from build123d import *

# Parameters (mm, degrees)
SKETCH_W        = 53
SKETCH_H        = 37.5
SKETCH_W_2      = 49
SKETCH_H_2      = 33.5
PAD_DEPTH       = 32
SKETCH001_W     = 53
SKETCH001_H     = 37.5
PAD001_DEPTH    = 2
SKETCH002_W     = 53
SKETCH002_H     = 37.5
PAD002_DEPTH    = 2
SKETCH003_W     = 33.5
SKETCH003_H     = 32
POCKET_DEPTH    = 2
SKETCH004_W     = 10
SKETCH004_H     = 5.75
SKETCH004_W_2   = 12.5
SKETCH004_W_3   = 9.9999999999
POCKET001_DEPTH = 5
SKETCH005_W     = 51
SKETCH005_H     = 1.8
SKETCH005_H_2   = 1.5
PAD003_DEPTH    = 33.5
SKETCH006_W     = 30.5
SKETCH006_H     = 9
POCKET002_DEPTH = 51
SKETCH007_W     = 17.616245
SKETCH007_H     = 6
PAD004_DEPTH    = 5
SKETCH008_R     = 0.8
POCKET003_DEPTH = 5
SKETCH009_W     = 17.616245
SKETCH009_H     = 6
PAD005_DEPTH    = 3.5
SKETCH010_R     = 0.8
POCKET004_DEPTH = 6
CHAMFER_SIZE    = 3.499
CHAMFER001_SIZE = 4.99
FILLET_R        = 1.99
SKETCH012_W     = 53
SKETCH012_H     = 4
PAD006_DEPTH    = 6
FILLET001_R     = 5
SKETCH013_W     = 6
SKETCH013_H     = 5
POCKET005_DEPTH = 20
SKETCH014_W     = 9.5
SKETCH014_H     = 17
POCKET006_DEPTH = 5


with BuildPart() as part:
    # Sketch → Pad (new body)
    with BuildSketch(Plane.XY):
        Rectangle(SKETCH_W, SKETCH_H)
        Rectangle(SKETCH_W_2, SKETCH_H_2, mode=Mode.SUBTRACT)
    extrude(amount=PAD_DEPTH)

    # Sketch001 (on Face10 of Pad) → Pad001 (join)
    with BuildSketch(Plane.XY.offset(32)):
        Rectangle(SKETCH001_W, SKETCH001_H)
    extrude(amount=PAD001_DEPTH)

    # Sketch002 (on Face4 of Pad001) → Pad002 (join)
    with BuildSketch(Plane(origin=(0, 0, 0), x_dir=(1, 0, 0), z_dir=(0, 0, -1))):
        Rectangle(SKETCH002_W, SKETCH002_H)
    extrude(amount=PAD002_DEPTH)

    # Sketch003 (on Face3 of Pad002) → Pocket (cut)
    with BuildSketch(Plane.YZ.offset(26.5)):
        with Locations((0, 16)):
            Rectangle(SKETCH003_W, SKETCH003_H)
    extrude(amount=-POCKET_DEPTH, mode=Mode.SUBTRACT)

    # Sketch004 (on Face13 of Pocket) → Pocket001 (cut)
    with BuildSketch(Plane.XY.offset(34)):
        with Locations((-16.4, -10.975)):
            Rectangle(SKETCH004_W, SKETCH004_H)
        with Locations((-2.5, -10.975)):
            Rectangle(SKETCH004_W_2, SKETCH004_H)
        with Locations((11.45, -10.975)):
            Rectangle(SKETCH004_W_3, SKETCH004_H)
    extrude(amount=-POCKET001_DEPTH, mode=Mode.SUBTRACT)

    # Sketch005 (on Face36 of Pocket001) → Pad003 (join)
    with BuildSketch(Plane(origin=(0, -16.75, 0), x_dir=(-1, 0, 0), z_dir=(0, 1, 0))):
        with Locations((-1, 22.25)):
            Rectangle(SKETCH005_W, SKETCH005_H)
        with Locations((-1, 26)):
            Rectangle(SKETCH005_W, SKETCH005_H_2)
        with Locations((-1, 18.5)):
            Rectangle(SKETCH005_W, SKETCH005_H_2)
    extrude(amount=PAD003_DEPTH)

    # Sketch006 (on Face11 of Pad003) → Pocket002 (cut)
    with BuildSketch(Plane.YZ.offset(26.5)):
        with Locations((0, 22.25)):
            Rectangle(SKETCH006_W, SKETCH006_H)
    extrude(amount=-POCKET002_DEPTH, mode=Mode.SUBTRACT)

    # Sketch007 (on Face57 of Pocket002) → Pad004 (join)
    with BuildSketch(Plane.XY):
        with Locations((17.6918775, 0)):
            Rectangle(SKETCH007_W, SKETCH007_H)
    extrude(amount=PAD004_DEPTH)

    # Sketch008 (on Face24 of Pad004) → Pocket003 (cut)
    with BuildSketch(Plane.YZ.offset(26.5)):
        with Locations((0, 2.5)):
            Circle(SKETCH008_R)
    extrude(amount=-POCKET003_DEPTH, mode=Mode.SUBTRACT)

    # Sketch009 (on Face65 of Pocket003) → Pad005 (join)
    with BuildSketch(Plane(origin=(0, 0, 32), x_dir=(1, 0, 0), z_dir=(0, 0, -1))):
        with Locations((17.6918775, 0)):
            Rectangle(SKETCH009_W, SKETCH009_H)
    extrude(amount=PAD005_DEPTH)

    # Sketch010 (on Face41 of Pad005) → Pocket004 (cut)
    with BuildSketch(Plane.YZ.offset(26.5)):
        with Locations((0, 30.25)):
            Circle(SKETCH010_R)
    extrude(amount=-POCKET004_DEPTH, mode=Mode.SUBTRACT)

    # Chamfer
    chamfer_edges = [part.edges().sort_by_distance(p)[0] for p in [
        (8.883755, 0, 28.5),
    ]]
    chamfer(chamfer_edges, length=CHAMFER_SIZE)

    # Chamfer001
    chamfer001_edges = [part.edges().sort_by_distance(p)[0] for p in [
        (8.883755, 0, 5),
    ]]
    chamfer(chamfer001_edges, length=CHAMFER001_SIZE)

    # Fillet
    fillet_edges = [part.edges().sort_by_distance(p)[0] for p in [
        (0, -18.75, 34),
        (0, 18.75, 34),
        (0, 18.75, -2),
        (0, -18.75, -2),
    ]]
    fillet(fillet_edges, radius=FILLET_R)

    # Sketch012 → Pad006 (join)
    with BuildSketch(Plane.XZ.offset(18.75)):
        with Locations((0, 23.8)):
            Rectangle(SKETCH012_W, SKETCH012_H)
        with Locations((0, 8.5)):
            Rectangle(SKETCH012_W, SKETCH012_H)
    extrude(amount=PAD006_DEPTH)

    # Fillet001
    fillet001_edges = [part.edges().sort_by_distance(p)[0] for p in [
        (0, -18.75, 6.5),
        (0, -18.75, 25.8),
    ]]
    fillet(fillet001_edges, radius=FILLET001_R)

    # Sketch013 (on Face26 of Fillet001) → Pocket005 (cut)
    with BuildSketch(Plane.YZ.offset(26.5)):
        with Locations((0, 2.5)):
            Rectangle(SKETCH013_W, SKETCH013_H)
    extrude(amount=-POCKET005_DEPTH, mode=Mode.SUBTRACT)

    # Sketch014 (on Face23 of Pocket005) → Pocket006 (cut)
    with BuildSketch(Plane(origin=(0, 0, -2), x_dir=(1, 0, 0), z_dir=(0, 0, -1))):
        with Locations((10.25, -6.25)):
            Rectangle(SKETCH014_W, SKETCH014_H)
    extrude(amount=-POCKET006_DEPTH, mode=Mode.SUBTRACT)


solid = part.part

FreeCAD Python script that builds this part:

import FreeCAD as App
import Part
import Sketcher

V = App.Vector


def edges_at(feature, points):
    """Names of the edges that pass closest to the given points."""
    edges = feature.Shape.Edges
    near = lambda p: min(range(len(edges)), key=lambda i: edges[i].distToShape(Part.Vertex(*p))[0])
    return sorted({f"Edge{near(p) + 1}" for p in points})

doc = App.newDocument("Part")
body = doc.addObject("PartDesign::Body", "Body")

sketch1 = body.newObject("Sketcher::SketchObject", "Sketch")
sketch1.AttachmentSupport = (doc.getObject("XY_Plane"), [""])
sketch1.MapMode = "FlatFace"
sketch1.addGeometry(Part.LineSegment(V(-26, 19, 0), V(-26, -19, 0)), False)
sketch1.addGeometry(Part.LineSegment(V(-26, -19, 0), V(26, -19, 0)), False)
sketch1.addGeometry(Part.LineSegment(V(26, -19, 0), V(26, 19, 0)), False)
sketch1.addGeometry(Part.LineSegment(V(26, 19, 0), V(-26, 19, 0)), False)
sketch1.addGeometry(Part.LineSegment(V(24, -17, 0), V(-24, -17, 0)), False)
sketch1.addGeometry(Part.LineSegment(V(-24, -17, 0), V(-24, 17, 0)), False)
sketch1.addGeometry(Part.LineSegment(V(-24, 17, 0), V(24, 17, 0)), False)
sketch1.addGeometry(Part.LineSegment(V(24, 17, 0), V(24, -17, 0)), False)
sketch1.addConstraint(Sketcher.Constraint("Coincident", 0, 2, 1, 1))
sketch1.addConstraint(Sketcher.Constraint("Coincident", 1, 2, 2, 1))
sketch1.addConstraint(Sketcher.Constraint("Coincident", 2, 2, 3, 1))
sketch1.addConstraint(Sketcher.Constraint("Coincident", 3, 2, 0, 1))
sketch1.addConstraint(Sketcher.Constraint("Coincident", 4, 2, 5, 1))
sketch1.addConstraint(Sketcher.Constraint("Coincident", 5, 2, 6, 1))
sketch1.addConstraint(Sketcher.Constraint("Coincident", 6, 2, 7, 1))
sketch1.addConstraint(Sketcher.Constraint("Coincident", 7, 2, 4, 1))
sketch1.addConstraint(Sketcher.Constraint("Vertical", 0))
sketch1.addConstraint(Sketcher.Constraint("Horizontal", 1))
sketch1.addConstraint(Sketcher.Constraint("Vertical", 2))
sketch1.addConstraint(Sketcher.Constraint("Horizontal", 3))
sketch1.addConstraint(Sketcher.Constraint("Horizontal", 4))
sketch1.addConstraint(Sketcher.Constraint("Vertical", 5))
sketch1.addConstraint(Sketcher.Constraint("Horizontal", 6))
sketch1.addConstraint(Sketcher.Constraint("Vertical", 7))
sketch1.addConstraint(Sketcher.Constraint("Symmetric", 0, 2, 2, 2, -1, 1))
sketch1.addConstraint(Sketcher.Constraint("Symmetric", 4, 2, 6, 2, -1, 1))
sketch1.addConstraint(Sketcher.Constraint("DistanceX", 1, 1, 1, 2, 53.0))
sketch1.addConstraint(Sketcher.Constraint("DistanceX", 4, 2, 4, 1, 49.0))
sketch1.addConstraint(Sketcher.Constraint("DistanceY", 0, 2, 0, 1, 37.5))
sketch1.addConstraint(Sketcher.Constraint("DistanceY", 5, 1, 5, 2, 33.5))
pad1 = body.newObject("PartDesign::Pad", "Pad")
pad1.Profile = sketch1
pad1.Length = 32

sketch2 = body.newObject("Sketcher::SketchObject", "Sketch001")
sketch2.AttachmentSupport = (doc.getObject("XY_Plane"), [""])
sketch2.MapMode = "FlatFace"
sketch2.AttachmentOffset = App.Placement(V(0, 0, 32), App.Rotation())
sketch2.addGeometry(Part.LineSegment(V(-26, 19, 0), V(-26, -19, 0)), False)
sketch2.addGeometry(Part.LineSegment(V(-26, -19, 0), V(26, -19, 0)), False)
sketch2.addGeometry(Part.LineSegment(V(26, -19, 0), V(26, 19, 0)), False)
sketch2.addGeometry(Part.LineSegment(V(26, 19, 0), V(-26, 19, 0)), False)
sketch2.addConstraint(Sketcher.Constraint("Coincident", 0, 2, 1, 1))
sketch2.addConstraint(Sketcher.Constraint("Coincident", 1, 2, 2, 1))
sketch2.addConstraint(Sketcher.Constraint("Coincident", 2, 2, 3, 1))
sketch2.addConstraint(Sketcher.Constraint("Coincident", 3, 2, 0, 1))
sketch2.addConstraint(Sketcher.Constraint("Vertical", 0))
sketch2.addConstraint(Sketcher.Constraint("Horizontal", 1))
sketch2.addConstraint(Sketcher.Constraint("Vertical", 2))
sketch2.addConstraint(Sketcher.Constraint("Horizontal", 3))
sketch2.addConstraint(Sketcher.Constraint("Symmetric", 0, 2, 2, 2, -1, 1))
sketch2.addConstraint(Sketcher.Constraint("DistanceX", 1, 1, 1, 2, 53.0))
sketch2.addConstraint(Sketcher.Constraint("DistanceY", 0, 2, 0, 1, 37.5))
pad2 = body.newObject("PartDesign::Pad", "Pad001")
pad2.Profile = sketch2
pad2.Length = 2

sketch3 = body.newObject("Sketcher::SketchObject", "Sketch002")
sketch3.AttachmentSupport = (doc.getObject("XY_Plane"), [""])
sketch3.MapMode = "FlatFace"
sketch3.addGeometry(Part.LineSegment(V(-26, -19, 0), V(-26, 19, 0)), False)
sketch3.addGeometry(Part.LineSegment(V(-26, 19, 0), V(26, 19, 0)), False)
sketch3.addGeometry(Part.LineSegment(V(26, 19, 0), V(26, -19, 0)), False)
sketch3.addGeometry(Part.LineSegment(V(26, -19, 0), V(-26, -19, 0)), False)
sketch3.addConstraint(Sketcher.Constraint("Coincident", 0, 2, 1, 1))
sketch3.addConstraint(Sketcher.Constraint("Coincident", 1, 2, 2, 1))
sketch3.addConstraint(Sketcher.Constraint("Coincident", 2, 2, 3, 1))
sketch3.addConstraint(Sketcher.Constraint("Coincident", 3, 2, 0, 1))
sketch3.addConstraint(Sketcher.Constraint("Vertical", 0))
sketch3.addConstraint(Sketcher.Constraint("Horizontal", 1))
sketch3.addConstraint(Sketcher.Constraint("Vertical", 2))
sketch3.addConstraint(Sketcher.Constraint("Horizontal", 3))
sketch3.addConstraint(Sketcher.Constraint("Symmetric", 0, 2, 2, 2, -1, 1))
sketch3.addConstraint(Sketcher.Constraint("DistanceX", 1, 1, 1, 2, 53.0))
sketch3.addConstraint(Sketcher.Constraint("DistanceY", 0, 1, 0, 2, 37.5))
pad3 = body.newObject("PartDesign::Pad", "Pad002")
pad3.Profile = sketch3
pad3.Length = 2
pad3.Reversed = True

sketch4 = body.newObject("Sketcher::SketchObject", "Sketch003")
sketch4.AttachmentSupport = (doc.getObject("YZ_Plane"), [""])
sketch4.MapMode = "FlatFace"
sketch4.AttachmentOffset = App.Placement(V(0, 0, 26.5), App.Rotation())
sketch4.addGeometry(Part.LineSegment(V(-17, 32, 0), V(-17, 0, 0)), False)
sketch4.addGeometry(Part.LineSegment(V(-17, 0, 0), V(17, 0, 0)), False)
sketch4.addGeometry(Part.LineSegment(V(17, 0, 0), V(17, 32, 0)), False)
sketch4.addGeometry(Part.LineSegment(V(17, 32, 0), V(-17, 32, 0)), False)
sketch4.addConstraint(Sketcher.Constraint("Coincident", 0, 2, 1, 1))
sketch4.addConstraint(Sketcher.Constraint("Coincident", 1, 2, 2, 1))
sketch4.addConstraint(Sketcher.Constraint("Coincident", 2, 2, 3, 1))
sketch4.addConstraint(Sketcher.Constraint("Coincident", 3, 2, 0, 1))
sketch4.addConstraint(Sketcher.Constraint("Vertical", 0))
sketch4.addConstraint(Sketcher.Constraint("Horizontal", 1))
sketch4.addConstraint(Sketcher.Constraint("Vertical", 2))
sketch4.addConstraint(Sketcher.Constraint("Horizontal", 3))
sketch4.addConstraint(Sketcher.Constraint("Symmetric", 0, 2, 1, 2, -1, 1))
sketch4.addConstraint(Sketcher.Constraint("DistanceY", 0, 2, 0, 1, 32.0))
sketch4.addConstraint(Sketcher.Constraint("DistanceX", 1, 1, 1, 2, 33.5))
pocket1 = body.newObject("PartDesign::Pocket", "Pocket")
pocket1.Profile = sketch4
pocket1.Length = 2

sketch5 = body.newObject("Sketcher::SketchObject", "Sketch004")
sketch5.AttachmentSupport = (doc.getObject("XY_Plane"), [""])
sketch5.MapMode = "FlatFace"
sketch5.AttachmentOffset = App.Placement(V(0, 0, 34), App.Rotation())
sketch5.addGeometry(Part.LineSegment(V(-21, -8, 0), V(-21, -14, 0)), False)
sketch5.addGeometry(Part.LineSegment(V(-21, -14, 0), V(-11, -14, 0)), False)
sketch5.addGeometry(Part.LineSegment(V(-11, -14, 0), V(-11, -8, 0)), False)
sketch5.addGeometry(Part.LineSegment(V(-11, -8, 0), V(-21, -8, 0)), False)
sketch5.addGeometry(Part.LineSegment(V(-9, -8, 0), V(-9, -14, 0)), False)
sketch5.addGeometry(Part.LineSegment(V(-9, -14, 0), V(4, -14, 0)), False)
sketch5.addGeometry(Part.LineSegment(V(4, -14, 0), V(4, -8, 0)), False)
sketch5.addGeometry(Part.LineSegment(V(4, -8, 0), V(-9, -8, 0)), False)
sketch5.addGeometry(Part.LineSegment(V(6, -8, 0), V(6, -14, 0)), False)
sketch5.addGeometry(Part.LineSegment(V(6, -14, 0), V(16, -14, 0)), False)
sketch5.addGeometry(Part.LineSegment(V(16, -14, 0), V(16, -8, 0)), False)
sketch5.addGeometry(Part.LineSegment(V(16, -8, 0), V(6, -8, 0)), False)
sketch5.addConstraint(Sketcher.Constraint("Coincident", 0, 2, 1, 1))
sketch5.addConstraint(Sketcher.Constraint("Coincident", 1, 2, 2, 1))
sketch5.addConstraint(Sketcher.Constraint("Coincident", 2, 2, 3, 1))
sketch5.addConstraint(Sketcher.Constraint("Coincident", 3, 2, 0, 1))
sketch5.addConstraint(Sketcher.Constraint("Coincident", 4, 2, 5, 1))
sketch5.addConstraint(Sketcher.Constraint("Coincident", 5, 2, 6, 1))
sketch5.addConstraint(Sketcher.Constraint("Coincident", 6, 2, 7, 1))
sketch5.addConstraint(Sketcher.Constraint("Coincident", 7, 2, 4, 1))
sketch5.addConstraint(Sketcher.Constraint("Coincident", 8, 2, 9, 1))
sketch5.addConstraint(Sketcher.Constraint("Coincident", 9, 2, 10, 1))
sketch5.addConstraint(Sketcher.Constraint("Coincident", 10, 2, 11, 1))
sketch5.addConstraint(Sketcher.Constraint("Coincident", 11, 2, 8, 1))
sketch5.addConstraint(Sketcher.Constraint("Vertical", 0))
sketch5.addConstraint(Sketcher.Constraint("Horizontal", 1))
sketch5.addConstraint(Sketcher.Constraint("Vertical", 2))
sketch5.addConstraint(Sketcher.Constraint("Horizontal", 3))
sketch5.addConstraint(Sketcher.Constraint("Vertical", 4))
sketch5.addConstraint(Sketcher.Constraint("Horizontal", 5))
sketch5.addConstraint(Sketcher.Constraint("Vertical", 6))
sketch5.addConstraint(Sketcher.Constraint("Horizontal", 7))
sketch5.addConstraint(Sketcher.Constraint("Vertical", 8))
sketch5.addConstraint(Sketcher.Constraint("Horizontal", 9))
sketch5.addConstraint(Sketcher.Constraint("Vertical", 10))
sketch5.addConstraint(Sketcher.Constraint("Horizontal", 11))
sketch5.addConstraint(Sketcher.Constraint("Horizontal", 1, 2, 4, 2))
sketch5.addConstraint(Sketcher.Constraint("Horizontal", 3, 2, 6, 2))
sketch5.addConstraint(Sketcher.Constraint("Horizontal", 5, 2, 8, 2))
sketch5.addConstraint(Sketcher.Constraint("Horizontal", 7, 2, 10, 2))
sketch5.addConstraint(Sketcher.Constraint("Equal", 3, 9))
sketch5.addConstraint(Sketcher.Constraint("DistanceX", 1, 1, 1, 2, 10.0))
sketch5.addConstraint(Sketcher.Constraint("DistanceX", 5, 1, 5, 2, 12.5))
sketch5.addConstraint(Sketcher.Constraint("DistanceY", 0, 2, 0, 1, 5.75))
sketch5.addConstraint(Sketcher.Constraint("DistanceX", 0, 2, -1, 1, 21.4))
sketch5.addConstraint(Sketcher.Constraint("DistanceY", 2, 2, -1, 1, 8.1))
sketch5.addConstraint(Sketcher.Constraint("DistanceX", 5, 2, 8, 2, 2.7))
sketch5.addConstraint(Sketcher.Constraint("DistanceX", 4, 2, -1, 1, 8.75))
pocket2 = body.newObject("PartDesign::Pocket", "Pocket001")
pocket2.Profile = sketch5
pocket2.Length = 5

sketch6 = body.newObject("Sketcher::SketchObject", "Sketch005")
sketch6.AttachmentSupport = (doc.getObject("XZ_Plane"), [""])
sketch6.MapMode = "FlatFace"
sketch6.AttachmentOffset = App.Placement(V(0, 0, 16.75), App.Rotation())
sketch6.addGeometry(Part.LineSegment(V(26.5, 23.1, 0), V(26.5, 21.4, 0)), False)
sketch6.addGeometry(Part.LineSegment(V(26.5, 21.4, 0), V(-24.5, 21.4, 0)), False)
sketch6.addGeometry(Part.LineSegment(V(-24.5, 21.4, 0), V(-24.5, 23.1, 0)), False)
sketch6.addGeometry(Part.LineSegment(V(-24.5, 23.1, 0), V(26.5, 23.1, 0)), False)
sketch6.addGeometry(Part.LineSegment(V(26.5, 26.8, 0), V(26.5, 25.2, 0)), False)
sketch6.addGeometry(Part.LineSegment(V(26.5, 25.2, 0), V(-24.5, 25.2, 0)), False)
sketch6.addGeometry(Part.LineSegment(V(-24.5, 25.2, 0), V(-24.5, 26.8, 0)), False)
sketch6.addGeometry(Part.LineSegment(V(-24.5, 26.8, 0), V(26.5, 26.8, 0)), False)
sketch6.addGeometry(Part.LineSegment(V(26.5, 19.2, 0), V(26.5, 17.8, 0)), False)
sketch6.addGeometry(Part.LineSegment(V(26.5, 17.8, 0), V(-24.5, 17.8, 0)), False)
sketch6.addGeometry(Part.LineSegment(V(-24.5, 17.8, 0), V(-24.5, 19.2, 0)), False)
sketch6.addGeometry(Part.LineSegment(V(-24.5, 19.2, 0), V(26.5, 19.2, 0)), False)
sketch6.addConstraint(Sketcher.Constraint("Coincident", 0, 2, 1, 1))
sketch6.addConstraint(Sketcher.Constraint("Coincident", 1, 2, 2, 1))
sketch6.addConstraint(Sketcher.Constraint("Coincident", 2, 2, 3, 1))
sketch6.addConstraint(Sketcher.Constraint("Coincident", 3, 2, 0, 1))
sketch6.addConstraint(Sketcher.Constraint("Coincident", 4, 2, 5, 1))
sketch6.addConstraint(Sketcher.Constraint("Coincident", 5, 2, 6, 1))
sketch6.addConstraint(Sketcher.Constraint("Coincident", 6, 2, 7, 1))
sketch6.addConstraint(Sketcher.Constraint("Coincident", 7, 2, 4, 1))
sketch6.addConstraint(Sketcher.Constraint("Coincident", 8, 2, 9, 1))
sketch6.addConstraint(Sketcher.Constraint("Coincident", 9, 2, 10, 1))
sketch6.addConstraint(Sketcher.Constraint("Coincident", 10, 2, 11, 1))
sketch6.addConstraint(Sketcher.Constraint("Coincident", 11, 2, 8, 1))
sketch6.addConstraint(Sketcher.Constraint("Vertical", 0))
sketch6.addConstraint(Sketcher.Constraint("Horizontal", 1))
sketch6.addConstraint(Sketcher.Constraint("Vertical", 2))
sketch6.addConstraint(Sketcher.Constraint("Horizontal", 3))
sketch6.addConstraint(Sketcher.Constraint("Vertical", 4))
sketch6.addConstraint(Sketcher.Constraint("Horizontal", 5))
sketch6.addConstraint(Sketcher.Constraint("Vertical", 6))
sketch6.addConstraint(Sketcher.Constraint("Horizontal", 7))
sketch6.addConstraint(Sketcher.Constraint("Vertical", 8))
sketch6.addConstraint(Sketcher.Constraint("Horizontal", 9))
sketch6.addConstraint(Sketcher.Constraint("Vertical", 10))
sketch6.addConstraint(Sketcher.Constraint("Horizontal", 11))
sketch6.addConstraint(Sketcher.Constraint("Vertical", 3, 2, 4, 2))
sketch6.addConstraint(Sketcher.Constraint("Vertical", 2, 2, 5, 2))
sketch6.addConstraint(Sketcher.Constraint("Vertical", 7, 2, 8, 2))
sketch6.addConstraint(Sketcher.Constraint("Vertical", 6, 2, 9, 2))
sketch6.addConstraint(Sketcher.Constraint("Equal", 6, 8))
sketch6.addConstraint(Sketcher.Constraint("DistanceX", 1, 2, 1, 1, 51.0))
sketch6.addConstraint(Sketcher.Constraint("DistanceY", 0, 2, 0, 1, 1.8))
sketch6.addConstraint(Sketcher.Constraint("DistanceY", 4, 2, 4, 1, 1.5))
sketch6.addConstraint(Sketcher.Constraint("DistanceY", 8, 2, 7, 2, 9.0))
sketch6.addConstraint(Sketcher.Constraint("DistanceX", -1, 1, 0, 2, 26.5))
sketch6.addConstraint(Sketcher.Constraint("DistanceY", 3, 2, 4, 2, 2.1))
sketch6.addConstraint(Sketcher.Constraint("DistanceY", -1, 1, 0, 2, 21.35))
pad4 = body.newObject("PartDesign::Pad", "Pad003")
pad4.Profile = sketch6
pad4.Length = 33.5
pad4.Reversed = True

sketch7 = body.newObject("Sketcher::SketchObject", "Sketch006")
sketch7.AttachmentSupport = (doc.getObject("YZ_Plane"), [""])
sketch7.MapMode = "FlatFace"
sketch7.AttachmentOffset = App.Placement(V(0, 0, 26.5), App.Rotation())
sketch7.addGeometry(Part.LineSegment(V(-15, 27, 0), V(-15, 18, 0)), False)
sketch7.addGeometry(Part.LineSegment(V(-15, 18, 0), V(15, 18, 0)), False)
sketch7.addGeometry(Part.LineSegment(V(15, 18, 0), V(15, 27, 0)), False)
sketch7.addGeometry(Part.LineSegment(V(15, 27, 0), V(-15, 27, 0)), False)
sketch7.addConstraint(Sketcher.Constraint("Coincident", 0, 2, 1, 1))
sketch7.addConstraint(Sketcher.Constraint("Coincident", 1, 2, 2, 1))
sketch7.addConstraint(Sketcher.Constraint("Coincident", 2, 2, 3, 1))
sketch7.addConstraint(Sketcher.Constraint("Coincident", 3, 2, 0, 1))
sketch7.addConstraint(Sketcher.Constraint("Vertical", 0))
sketch7.addConstraint(Sketcher.Constraint("Horizontal", 1))
sketch7.addConstraint(Sketcher.Constraint("Vertical", 2))
sketch7.addConstraint(Sketcher.Constraint("Horizontal", 3))
sketch7.addConstraint(Sketcher.Constraint("DistanceY", 0, 2, 0, 1, 9.0))
sketch7.addConstraint(Sketcher.Constraint("DistanceX", 1, 1, 1, 2, 30.5))
sketch7.addConstraint(Sketcher.Constraint("DistanceX", 0, 2, -1, 1, 15.25))
sketch7.addConstraint(Sketcher.Constraint("DistanceY", -1, 1, 0, 2, 17.75))
pocket3 = body.newObject("PartDesign::Pocket", "Pocket002")
pocket3.Profile = sketch7
pocket3.Length = 51

sketch8 = body.newObject("Sketcher::SketchObject", "Sketch007")
sketch8.AttachmentSupport = (doc.getObject("XY_Plane"), [""])
sketch8.MapMode = "FlatFace"
sketch8.addGeometry(Part.LineSegment(V(9, 3, 0), V(9, -3, 0)), False)
sketch8.addGeometry(Part.LineSegment(V(9, -3, 0), V(26, -3, 0)), False)
sketch8.addGeometry(Part.LineSegment(V(26, -3, 0), V(26, 3, 0)), False)
sketch8.addGeometry(Part.LineSegment(V(26, 3, 0), V(9, 3, 0)), False)
sketch8.addConstraint(Sketcher.Constraint("Coincident", 0, 2, 1, 1))
sketch8.addConstraint(Sketcher.Constraint("Coincident", 1, 2, 2, 1))
sketch8.addConstraint(Sketcher.Constraint("Coincident", 2, 2, 3, 1))
sketch8.addConstraint(Sketcher.Constraint("Coincident", 3, 2, 0, 1))
sketch8.addConstraint(Sketcher.Constraint("Vertical", 0))
sketch8.addConstraint(Sketcher.Constraint("Horizontal", 1))
sketch8.addConstraint(Sketcher.Constraint("Vertical", 2))
sketch8.addConstraint(Sketcher.Constraint("Horizontal", 3))
sketch8.addConstraint(Sketcher.Constraint("DistanceY", 0, 2, 0, 1, 6.0))
sketch8.addConstraint(Sketcher.Constraint("DistanceY", 0, 2, -1, 1, 3.0))
sketch8.addConstraint(Sketcher.Constraint("DistanceX", -1, 1, 1, 2, 26.5))
sketch8.addConstraint(Sketcher.Constraint("DistanceX", 1, 1, 1, 2, 17.616245))
pad5 = body.newObject("PartDesign::Pad", "Pad004")
pad5.Profile = sketch8
pad5.Length = 5

sketch9 = body.newObject("Sketcher::SketchObject", "Sketch008")
sketch9.AttachmentSupport = (doc.getObject("YZ_Plane"), [""])
sketch9.MapMode = "FlatFace"
sketch9.AttachmentOffset = App.Placement(V(0, 0, 26.5), App.Rotation())
sketch9.addGeometry(Part.Circle(V(0, 2.5, 0), V(0, 0, 1), 0.8), False)
sketch9.addConstraint(Sketcher.Constraint("PointOnObject", 0, 3, -2))
sketch9.addConstraint(Sketcher.Constraint("Diameter", 0, 1.6))
sketch9.addConstraint(Sketcher.Constraint("DistanceY", -1, 1, 0, 3, 2.5))
pocket4 = body.newObject("PartDesign::Pocket", "Pocket003")
pocket4.Profile = sketch9
pocket4.Length = 5

sketch10 = body.newObject("Sketcher::SketchObject", "Sketch009")
sketch10.AttachmentSupport = (doc.getObject("XY_Plane"), [""])
sketch10.MapMode = "FlatFace"
sketch10.AttachmentOffset = App.Placement(V(0, 0, 32), App.Rotation())
sketch10.addGeometry(Part.LineSegment(V(9, -3, 0), V(9, 3, 0)), False)
sketch10.addGeometry(Part.LineSegment(V(9, 3, 0), V(26, 3, 0)), False)
sketch10.addGeometry(Part.LineSegment(V(26, 3, 0), V(26, -3, 0)), False)
sketch10.addGeometry(Part.LineSegment(V(26, -3, 0), V(9, -3, 0)), False)
sketch10.addConstraint(Sketcher.Constraint("Coincident", 0, 2, 1, 1))
sketch10.addConstraint(Sketcher.Constraint("Coincident", 1, 2, 2, 1))
sketch10.addConstraint(Sketcher.Constraint("Coincident", 2, 2, 3, 1))
sketch10.addConstraint(Sketcher.Constraint("Coincident", 3, 2, 0, 1))
sketch10.addConstraint(Sketcher.Constraint("Vertical", 0))
sketch10.addConstraint(Sketcher.Constraint("Horizontal", 1))
sketch10.addConstraint(Sketcher.Constraint("Vertical", 2))
sketch10.addConstraint(Sketcher.Constraint("Horizontal", 3))
sketch10.addConstraint(Sketcher.Constraint("DistanceY", 0, 1, 0, 2, 6.0))
sketch10.addConstraint(Sketcher.Constraint("DistanceY", -1, 1, 0, 2, 3.0))
sketch10.addConstraint(Sketcher.Constraint("DistanceX", -1, 1, 1, 2, 26.5))
sketch10.addConstraint(Sketcher.Constraint("DistanceX", 1, 1, 1, 2, 17.616245))
pad6 = body.newObject("PartDesign::Pad", "Pad005")
pad6.Profile = sketch10
pad6.Length = 3.5
pad6.Reversed = True

sketch11 = body.newObject("Sketcher::SketchObject", "Sketch010")
sketch11.AttachmentSupport = (doc.getObject("YZ_Plane"), [""])
sketch11.MapMode = "FlatFace"
sketch11.AttachmentOffset = App.Placement(V(0, 0, 26.5), App.Rotation())
sketch11.addGeometry(Part.Circle(V(0, 30.2, 0), V(0, 0, 1), 0.8), False)
sketch11.addConstraint(Sketcher.Constraint("PointOnObject", 0, 3, -2))
sketch11.addConstraint(Sketcher.Constraint("Diameter", 0, 1.6))
sketch11.addConstraint(Sketcher.Constraint("DistanceY", -1, 1, 0, 3, 30.25))
pocket5 = body.newObject("PartDesign::Pocket", "Pocket004")
pocket5.Profile = sketch11
pocket5.Length = 6
doc.recompute()

chamfer = body.newObject("PartDesign::Chamfer", "Chamfer")
chamfer.Base = (pocket5, edges_at(pocket5, [(8.884, 0, 28.5)]))
chamfer.Size = 3.499
doc.recompute()

chamfer2 = body.newObject("PartDesign::Chamfer", "Chamfer001")
chamfer2.Base = (chamfer, edges_at(chamfer, [(8.884, 0, 5)]))
chamfer2.Size = 4.99
doc.recompute()

fillet = body.newObject("PartDesign::Fillet", "Fillet")
fillet.Base = (chamfer2, edges_at(chamfer2, [
    (0, -18.75, 34),
    (0, 18.75, 34),
    (0, 18.75, -2),
    (0, -18.75, -2),
]))
fillet.Radius = 1.99

sketch12 = body.newObject("Sketcher::SketchObject", "Sketch011")
sketch12.AttachmentSupport = (doc.getObject("XZ_Plane"), [""])
sketch12.MapMode = "FlatFace"
sketch12.AttachmentOffset = App.Placement(V(0, 0, 18.75), App.Rotation())
sketch12.addGeometry(Part.LineSegment(V(-26.5, 25.8, 0), V(-26.5, 21.8, 0)), False)
sketch12.addGeometry(Part.LineSegment(V(-26.5, 21.8, 0), V(26.5, 21.8, 0)), False)
sketch12.addGeometry(Part.LineSegment(V(26.5, 21.8, 0), V(26.5, 25.8, 0)), False)
sketch12.addGeometry(Part.LineSegment(V(26.5, 25.8, 0), V(-26.5, 25.8, 0)), False)
sketch12.addGeometry(Part.LineSegment(V(-26.5, 10.5, 0), V(-26.5, 6.5, 0)), False)
sketch12.addGeometry(Part.LineSegment(V(-26.5, 6.5, 0), V(26.5, 6.5, 0)), False)
sketch12.addGeometry(Part.LineSegment(V(26.5, 6.5, 0), V(26.5, 10.5, 0)), False)
sketch12.addGeometry(Part.LineSegment(V(26.5, 10.5, 0), V(-26.5, 10.5, 0)), False)
sketch12.addConstraint(Sketcher.Constraint("Coincident", 0, 2, 1, 1))
sketch12.addConstraint(Sketcher.Constraint("Coincident", 1, 2, 2, 1))
sketch12.addConstraint(Sketcher.Constraint("Coincident", 2, 2, 3, 1))
sketch12.addConstraint(Sketcher.Constraint("Coincident", 3, 2, 0, 1))
sketch12.addConstraint(Sketcher.Constraint("Coincident", 4, 2, 5, 1))
sketch12.addConstraint(Sketcher.Constraint("Coincident", 5, 2, 6, 1))
sketch12.addConstraint(Sketcher.Constraint("Coincident", 6, 2, 7, 1))
sketch12.addConstraint(Sketcher.Constraint("Coincident", 7, 2, 4, 1))
sketch12.addConstraint(Sketcher.Constraint("Vertical", 0))
sketch12.addConstraint(Sketcher.Constraint("Horizontal", 1))
sketch12.addConstraint(Sketcher.Constraint("Vertical", 2))
sketch12.addConstraint(Sketcher.Constraint("Horizontal", 3))
sketch12.addConstraint(Sketcher.Constraint("Vertical", 4))
sketch12.addConstraint(Sketcher.Constraint("Horizontal", 5))
sketch12.addConstraint(Sketcher.Constraint("Vertical", 6))
sketch12.addConstraint(Sketcher.Constraint("Horizontal", 7))
sketch12.addConstraint(Sketcher.Constraint("Vertical", 3, 2, 4, 2))
sketch12.addConstraint(Sketcher.Constraint("Vertical", 2, 2, 5, 2))
sketch12.addConstraint(Sketcher.Constraint("Equal", 2, 4))
sketch12.addConstraint(Sketcher.Constraint("DistanceX", 1, 1, 1, 2, 53.0))
sketch12.addConstraint(Sketcher.Constraint("DistanceY", 0, 2, 0, 1, 4.0))
sketch12.addConstraint(Sketcher.Constraint("DistanceX", 0, 2, -1, 1, 26.5))
sketch12.addConstraint(Sketcher.Constraint("DistanceY", -1, 1, 0, 2, 21.8))
sketch12.addConstraint(Sketcher.Constraint("DistanceY", -1, 1, 4, 2, 6.5))
pad7 = body.newObject("PartDesign::Pad", "Pad006")
pad7.Profile = sketch12
pad7.Length = 6
doc.recompute()

fillet2 = body.newObject("PartDesign::Fillet", "Fillet001")
fillet2.Base = (pad7, edges_at(pad7, [(0, -18.75, 6.5), (0, -18.75, 25.8)]))
fillet2.Radius = 5

sketch13 = body.newObject("Sketcher::SketchObject", "Sketch012")
sketch13.AttachmentSupport = (doc.getObject("YZ_Plane"), [""])
sketch13.MapMode = "FlatFace"
sketch13.AttachmentOffset = App.Placement(V(0, 0, 26.5), App.Rotation())
sketch13.addGeometry(Part.LineSegment(V(-3, 5, 0), V(-3, 0, 0)), False)
sketch13.addGeometry(Part.LineSegment(V(-3, 0, 0), V(3, 0, 0)), False)
sketch13.addGeometry(Part.LineSegment(V(3, 0, 0), V(3, 5, 0)), False)
sketch13.addGeometry(Part.LineSegment(V(3, 5, 0), V(-3, 5, 0)), False)
sketch13.addConstraint(Sketcher.Constraint("Coincident", 0, 2, 1, 1))
sketch13.addConstraint(Sketcher.Constraint("Coincident", 1, 2, 2, 1))
sketch13.addConstraint(Sketcher.Constraint("Coincident", 2, 2, 3, 1))
sketch13.addConstraint(Sketcher.Constraint("Coincident", 3, 2, 0, 1))
sketch13.addConstraint(Sketcher.Constraint("Vertical", 0))
sketch13.addConstraint(Sketcher.Constraint("Horizontal", 1))
sketch13.addConstraint(Sketcher.Constraint("Vertical", 2))
sketch13.addConstraint(Sketcher.Constraint("Horizontal", 3))
sketch13.addConstraint(Sketcher.Constraint("Symmetric", 0, 2, 1, 2, -1, 1))
sketch13.addConstraint(Sketcher.Constraint("DistanceX", 1, 1, 1, 2, 6.0))
sketch13.addConstraint(Sketcher.Constraint("DistanceY", 0, 2, 0, 1, 5.0))
pocket6 = body.newObject("PartDesign::Pocket", "Pocket005")
pocket6.Profile = sketch13
pocket6.Length = 20

sketch14 = body.newObject("Sketcher::SketchObject", "Sketch013")
sketch14.AttachmentSupport = (doc.getObject("XY_Plane"), [""])
sketch14.MapMode = "FlatFace"
sketch14.AttachmentOffset = App.Placement(V(0, 0, -2), App.Rotation())
sketch14.addGeometry(Part.LineSegment(V(6, -2, 0), V(6, 15, 0)), False)
sketch14.addGeometry(Part.LineSegment(V(6, 15, 0), V(15, 15, 0)), False)
sketch14.addGeometry(Part.LineSegment(V(15, 15, 0), V(15, -2, 0)), False)
sketch14.addGeometry(Part.LineSegment(V(15, -2, 0), V(6, -2, 0)), False)
sketch14.addConstraint(Sketcher.Constraint("Coincident", 0, 2, 1, 1))
sketch14.addConstraint(Sketcher.Constraint("Coincident", 1, 2, 2, 1))
sketch14.addConstraint(Sketcher.Constraint("Coincident", 2, 2, 3, 1))
sketch14.addConstraint(Sketcher.Constraint("Coincident", 3, 2, 0, 1))
sketch14.addConstraint(Sketcher.Constraint("Vertical", 0))
sketch14.addConstraint(Sketcher.Constraint("Horizontal", 1))
sketch14.addConstraint(Sketcher.Constraint("Vertical", 2))
sketch14.addConstraint(Sketcher.Constraint("Horizontal", 3))
sketch14.addConstraint(Sketcher.Constraint("DistanceY", 0, 1, 0, 2, 17.0))
sketch14.addConstraint(Sketcher.Constraint("DistanceX", 1, 1, 1, 2, 9.5))
sketch14.addConstraint(Sketcher.Constraint("DistanceX", -1, 1, 1, 2, 15.0))
sketch14.addConstraint(Sketcher.Constraint("DistanceY", -1, 1, 0, 2, 14.75))
pocket7 = body.newObject("PartDesign::Pocket", "Pocket006")
pocket7.Profile = sketch14
pocket7.Length = 5
pocket7.Reversed = True

doc.recompute()
